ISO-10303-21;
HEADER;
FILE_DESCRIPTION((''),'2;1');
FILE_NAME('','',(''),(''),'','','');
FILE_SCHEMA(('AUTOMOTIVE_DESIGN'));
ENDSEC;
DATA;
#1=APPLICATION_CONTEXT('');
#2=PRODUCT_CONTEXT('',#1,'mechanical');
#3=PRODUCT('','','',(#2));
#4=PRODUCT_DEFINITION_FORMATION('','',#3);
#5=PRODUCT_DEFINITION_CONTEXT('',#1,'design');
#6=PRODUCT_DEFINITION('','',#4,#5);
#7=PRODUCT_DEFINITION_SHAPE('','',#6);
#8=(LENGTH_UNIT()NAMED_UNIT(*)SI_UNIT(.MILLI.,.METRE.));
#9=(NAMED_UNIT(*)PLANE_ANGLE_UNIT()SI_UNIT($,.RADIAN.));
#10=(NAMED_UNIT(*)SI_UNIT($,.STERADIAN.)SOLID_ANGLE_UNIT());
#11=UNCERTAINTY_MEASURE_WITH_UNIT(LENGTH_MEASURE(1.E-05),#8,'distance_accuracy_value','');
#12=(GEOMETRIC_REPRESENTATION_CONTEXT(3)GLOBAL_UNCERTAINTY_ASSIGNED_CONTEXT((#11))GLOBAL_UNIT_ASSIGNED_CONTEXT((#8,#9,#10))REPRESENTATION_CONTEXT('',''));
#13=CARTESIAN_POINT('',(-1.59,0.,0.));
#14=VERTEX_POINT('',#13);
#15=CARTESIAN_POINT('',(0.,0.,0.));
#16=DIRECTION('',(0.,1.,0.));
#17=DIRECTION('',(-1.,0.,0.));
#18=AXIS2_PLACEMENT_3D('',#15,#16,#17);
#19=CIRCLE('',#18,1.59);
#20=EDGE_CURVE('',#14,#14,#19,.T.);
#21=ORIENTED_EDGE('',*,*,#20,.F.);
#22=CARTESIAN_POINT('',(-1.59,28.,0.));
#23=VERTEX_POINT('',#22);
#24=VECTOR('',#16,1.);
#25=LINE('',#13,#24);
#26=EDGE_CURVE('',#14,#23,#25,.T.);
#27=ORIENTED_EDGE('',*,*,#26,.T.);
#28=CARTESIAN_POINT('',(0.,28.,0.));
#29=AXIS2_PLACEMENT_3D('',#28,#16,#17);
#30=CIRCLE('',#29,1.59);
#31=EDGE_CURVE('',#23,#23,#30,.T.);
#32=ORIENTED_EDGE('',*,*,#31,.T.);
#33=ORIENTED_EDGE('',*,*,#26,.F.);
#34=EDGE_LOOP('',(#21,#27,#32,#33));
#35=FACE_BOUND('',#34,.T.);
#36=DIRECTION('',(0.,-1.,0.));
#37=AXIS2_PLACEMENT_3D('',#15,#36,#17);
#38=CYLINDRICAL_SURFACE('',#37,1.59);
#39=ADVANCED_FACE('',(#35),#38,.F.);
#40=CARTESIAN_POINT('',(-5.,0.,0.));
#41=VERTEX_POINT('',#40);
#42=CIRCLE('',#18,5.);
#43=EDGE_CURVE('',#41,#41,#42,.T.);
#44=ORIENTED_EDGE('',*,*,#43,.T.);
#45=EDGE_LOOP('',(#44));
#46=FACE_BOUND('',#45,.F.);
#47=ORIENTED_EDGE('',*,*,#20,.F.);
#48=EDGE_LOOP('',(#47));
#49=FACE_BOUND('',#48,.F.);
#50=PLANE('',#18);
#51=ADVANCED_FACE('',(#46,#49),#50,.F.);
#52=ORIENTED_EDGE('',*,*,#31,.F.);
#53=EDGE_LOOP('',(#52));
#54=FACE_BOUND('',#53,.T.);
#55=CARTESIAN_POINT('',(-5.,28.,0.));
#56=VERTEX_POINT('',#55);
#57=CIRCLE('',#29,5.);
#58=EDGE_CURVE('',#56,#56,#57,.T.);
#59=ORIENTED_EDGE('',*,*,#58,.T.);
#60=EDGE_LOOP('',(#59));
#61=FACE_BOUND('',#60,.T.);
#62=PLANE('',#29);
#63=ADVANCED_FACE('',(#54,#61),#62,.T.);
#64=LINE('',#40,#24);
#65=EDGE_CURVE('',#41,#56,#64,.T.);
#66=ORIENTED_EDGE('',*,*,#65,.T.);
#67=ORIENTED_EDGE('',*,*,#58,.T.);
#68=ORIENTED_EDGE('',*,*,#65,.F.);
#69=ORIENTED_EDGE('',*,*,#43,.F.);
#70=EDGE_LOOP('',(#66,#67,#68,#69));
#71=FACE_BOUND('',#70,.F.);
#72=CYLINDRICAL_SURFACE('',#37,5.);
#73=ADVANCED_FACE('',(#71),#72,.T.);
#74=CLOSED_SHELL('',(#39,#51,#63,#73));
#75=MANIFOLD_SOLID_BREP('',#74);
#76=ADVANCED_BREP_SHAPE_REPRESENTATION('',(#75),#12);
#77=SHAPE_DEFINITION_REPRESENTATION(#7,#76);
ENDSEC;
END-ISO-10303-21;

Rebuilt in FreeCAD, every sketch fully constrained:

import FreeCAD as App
import Part
import Sketcher

doc = App.newDocument("Part")
params = doc.addObject("Spreadsheet::Sheet", "Params")
for row, (alias, value) in enumerate([
    ("sketch1_diameter", "10 mm"),
    ("sketch1_diameter2", "3.18 mm"),
    ("pad1_length", "28 mm"),
], start=1):
    params.set(f"A{row}", alias)
    params.set(f"B{row}", "=" + value)
    params.setAlias(f"B{row}", alias)

body = doc.addObject("PartDesign::Body", "Body")

sketch1 = body.newObject("Sketcher::SketchObject", "Sketch")
sketch1.AttachmentSupport = (doc.getObject("XZ_Plane"), [""])
sketch1.MapMode = "FlatFace"
sketch1.addGeometry(Part.Circle(App.Vector(0, 0, 0), App.Vector(0, 0, 1), 5), False)
sketch1.addGeometry(Part.Circle(App.Vector(0, 0, 0), App.Vector(0, 0, 1), 1.6), False)
sketch1.addConstraint(Sketcher.Constraint("Coincident", 0, 3, -1, 1))
sketch1.addConstraint(Sketcher.Constraint("Coincident", 1, 3, -1, 1))
sketch1.addConstraint(Sketcher.Constraint("Diameter", 0, 10.0))
sketch1.addConstraint(Sketcher.Constraint("Diameter", 1, 3.18))
sketch1.setExpression("Constraints[2]", "Params.sketch1_diameter")
sketch1.setExpression("Constraints[3]", "Params.sketch1_diameter2")
pad1 = body.newObject("PartDesign::Pad", "Pad")
pad1.Profile = sketch1
pad1.setExpression("Length", "Params.pad1_length")
pad1.Reversed = True

doc.recompute()
